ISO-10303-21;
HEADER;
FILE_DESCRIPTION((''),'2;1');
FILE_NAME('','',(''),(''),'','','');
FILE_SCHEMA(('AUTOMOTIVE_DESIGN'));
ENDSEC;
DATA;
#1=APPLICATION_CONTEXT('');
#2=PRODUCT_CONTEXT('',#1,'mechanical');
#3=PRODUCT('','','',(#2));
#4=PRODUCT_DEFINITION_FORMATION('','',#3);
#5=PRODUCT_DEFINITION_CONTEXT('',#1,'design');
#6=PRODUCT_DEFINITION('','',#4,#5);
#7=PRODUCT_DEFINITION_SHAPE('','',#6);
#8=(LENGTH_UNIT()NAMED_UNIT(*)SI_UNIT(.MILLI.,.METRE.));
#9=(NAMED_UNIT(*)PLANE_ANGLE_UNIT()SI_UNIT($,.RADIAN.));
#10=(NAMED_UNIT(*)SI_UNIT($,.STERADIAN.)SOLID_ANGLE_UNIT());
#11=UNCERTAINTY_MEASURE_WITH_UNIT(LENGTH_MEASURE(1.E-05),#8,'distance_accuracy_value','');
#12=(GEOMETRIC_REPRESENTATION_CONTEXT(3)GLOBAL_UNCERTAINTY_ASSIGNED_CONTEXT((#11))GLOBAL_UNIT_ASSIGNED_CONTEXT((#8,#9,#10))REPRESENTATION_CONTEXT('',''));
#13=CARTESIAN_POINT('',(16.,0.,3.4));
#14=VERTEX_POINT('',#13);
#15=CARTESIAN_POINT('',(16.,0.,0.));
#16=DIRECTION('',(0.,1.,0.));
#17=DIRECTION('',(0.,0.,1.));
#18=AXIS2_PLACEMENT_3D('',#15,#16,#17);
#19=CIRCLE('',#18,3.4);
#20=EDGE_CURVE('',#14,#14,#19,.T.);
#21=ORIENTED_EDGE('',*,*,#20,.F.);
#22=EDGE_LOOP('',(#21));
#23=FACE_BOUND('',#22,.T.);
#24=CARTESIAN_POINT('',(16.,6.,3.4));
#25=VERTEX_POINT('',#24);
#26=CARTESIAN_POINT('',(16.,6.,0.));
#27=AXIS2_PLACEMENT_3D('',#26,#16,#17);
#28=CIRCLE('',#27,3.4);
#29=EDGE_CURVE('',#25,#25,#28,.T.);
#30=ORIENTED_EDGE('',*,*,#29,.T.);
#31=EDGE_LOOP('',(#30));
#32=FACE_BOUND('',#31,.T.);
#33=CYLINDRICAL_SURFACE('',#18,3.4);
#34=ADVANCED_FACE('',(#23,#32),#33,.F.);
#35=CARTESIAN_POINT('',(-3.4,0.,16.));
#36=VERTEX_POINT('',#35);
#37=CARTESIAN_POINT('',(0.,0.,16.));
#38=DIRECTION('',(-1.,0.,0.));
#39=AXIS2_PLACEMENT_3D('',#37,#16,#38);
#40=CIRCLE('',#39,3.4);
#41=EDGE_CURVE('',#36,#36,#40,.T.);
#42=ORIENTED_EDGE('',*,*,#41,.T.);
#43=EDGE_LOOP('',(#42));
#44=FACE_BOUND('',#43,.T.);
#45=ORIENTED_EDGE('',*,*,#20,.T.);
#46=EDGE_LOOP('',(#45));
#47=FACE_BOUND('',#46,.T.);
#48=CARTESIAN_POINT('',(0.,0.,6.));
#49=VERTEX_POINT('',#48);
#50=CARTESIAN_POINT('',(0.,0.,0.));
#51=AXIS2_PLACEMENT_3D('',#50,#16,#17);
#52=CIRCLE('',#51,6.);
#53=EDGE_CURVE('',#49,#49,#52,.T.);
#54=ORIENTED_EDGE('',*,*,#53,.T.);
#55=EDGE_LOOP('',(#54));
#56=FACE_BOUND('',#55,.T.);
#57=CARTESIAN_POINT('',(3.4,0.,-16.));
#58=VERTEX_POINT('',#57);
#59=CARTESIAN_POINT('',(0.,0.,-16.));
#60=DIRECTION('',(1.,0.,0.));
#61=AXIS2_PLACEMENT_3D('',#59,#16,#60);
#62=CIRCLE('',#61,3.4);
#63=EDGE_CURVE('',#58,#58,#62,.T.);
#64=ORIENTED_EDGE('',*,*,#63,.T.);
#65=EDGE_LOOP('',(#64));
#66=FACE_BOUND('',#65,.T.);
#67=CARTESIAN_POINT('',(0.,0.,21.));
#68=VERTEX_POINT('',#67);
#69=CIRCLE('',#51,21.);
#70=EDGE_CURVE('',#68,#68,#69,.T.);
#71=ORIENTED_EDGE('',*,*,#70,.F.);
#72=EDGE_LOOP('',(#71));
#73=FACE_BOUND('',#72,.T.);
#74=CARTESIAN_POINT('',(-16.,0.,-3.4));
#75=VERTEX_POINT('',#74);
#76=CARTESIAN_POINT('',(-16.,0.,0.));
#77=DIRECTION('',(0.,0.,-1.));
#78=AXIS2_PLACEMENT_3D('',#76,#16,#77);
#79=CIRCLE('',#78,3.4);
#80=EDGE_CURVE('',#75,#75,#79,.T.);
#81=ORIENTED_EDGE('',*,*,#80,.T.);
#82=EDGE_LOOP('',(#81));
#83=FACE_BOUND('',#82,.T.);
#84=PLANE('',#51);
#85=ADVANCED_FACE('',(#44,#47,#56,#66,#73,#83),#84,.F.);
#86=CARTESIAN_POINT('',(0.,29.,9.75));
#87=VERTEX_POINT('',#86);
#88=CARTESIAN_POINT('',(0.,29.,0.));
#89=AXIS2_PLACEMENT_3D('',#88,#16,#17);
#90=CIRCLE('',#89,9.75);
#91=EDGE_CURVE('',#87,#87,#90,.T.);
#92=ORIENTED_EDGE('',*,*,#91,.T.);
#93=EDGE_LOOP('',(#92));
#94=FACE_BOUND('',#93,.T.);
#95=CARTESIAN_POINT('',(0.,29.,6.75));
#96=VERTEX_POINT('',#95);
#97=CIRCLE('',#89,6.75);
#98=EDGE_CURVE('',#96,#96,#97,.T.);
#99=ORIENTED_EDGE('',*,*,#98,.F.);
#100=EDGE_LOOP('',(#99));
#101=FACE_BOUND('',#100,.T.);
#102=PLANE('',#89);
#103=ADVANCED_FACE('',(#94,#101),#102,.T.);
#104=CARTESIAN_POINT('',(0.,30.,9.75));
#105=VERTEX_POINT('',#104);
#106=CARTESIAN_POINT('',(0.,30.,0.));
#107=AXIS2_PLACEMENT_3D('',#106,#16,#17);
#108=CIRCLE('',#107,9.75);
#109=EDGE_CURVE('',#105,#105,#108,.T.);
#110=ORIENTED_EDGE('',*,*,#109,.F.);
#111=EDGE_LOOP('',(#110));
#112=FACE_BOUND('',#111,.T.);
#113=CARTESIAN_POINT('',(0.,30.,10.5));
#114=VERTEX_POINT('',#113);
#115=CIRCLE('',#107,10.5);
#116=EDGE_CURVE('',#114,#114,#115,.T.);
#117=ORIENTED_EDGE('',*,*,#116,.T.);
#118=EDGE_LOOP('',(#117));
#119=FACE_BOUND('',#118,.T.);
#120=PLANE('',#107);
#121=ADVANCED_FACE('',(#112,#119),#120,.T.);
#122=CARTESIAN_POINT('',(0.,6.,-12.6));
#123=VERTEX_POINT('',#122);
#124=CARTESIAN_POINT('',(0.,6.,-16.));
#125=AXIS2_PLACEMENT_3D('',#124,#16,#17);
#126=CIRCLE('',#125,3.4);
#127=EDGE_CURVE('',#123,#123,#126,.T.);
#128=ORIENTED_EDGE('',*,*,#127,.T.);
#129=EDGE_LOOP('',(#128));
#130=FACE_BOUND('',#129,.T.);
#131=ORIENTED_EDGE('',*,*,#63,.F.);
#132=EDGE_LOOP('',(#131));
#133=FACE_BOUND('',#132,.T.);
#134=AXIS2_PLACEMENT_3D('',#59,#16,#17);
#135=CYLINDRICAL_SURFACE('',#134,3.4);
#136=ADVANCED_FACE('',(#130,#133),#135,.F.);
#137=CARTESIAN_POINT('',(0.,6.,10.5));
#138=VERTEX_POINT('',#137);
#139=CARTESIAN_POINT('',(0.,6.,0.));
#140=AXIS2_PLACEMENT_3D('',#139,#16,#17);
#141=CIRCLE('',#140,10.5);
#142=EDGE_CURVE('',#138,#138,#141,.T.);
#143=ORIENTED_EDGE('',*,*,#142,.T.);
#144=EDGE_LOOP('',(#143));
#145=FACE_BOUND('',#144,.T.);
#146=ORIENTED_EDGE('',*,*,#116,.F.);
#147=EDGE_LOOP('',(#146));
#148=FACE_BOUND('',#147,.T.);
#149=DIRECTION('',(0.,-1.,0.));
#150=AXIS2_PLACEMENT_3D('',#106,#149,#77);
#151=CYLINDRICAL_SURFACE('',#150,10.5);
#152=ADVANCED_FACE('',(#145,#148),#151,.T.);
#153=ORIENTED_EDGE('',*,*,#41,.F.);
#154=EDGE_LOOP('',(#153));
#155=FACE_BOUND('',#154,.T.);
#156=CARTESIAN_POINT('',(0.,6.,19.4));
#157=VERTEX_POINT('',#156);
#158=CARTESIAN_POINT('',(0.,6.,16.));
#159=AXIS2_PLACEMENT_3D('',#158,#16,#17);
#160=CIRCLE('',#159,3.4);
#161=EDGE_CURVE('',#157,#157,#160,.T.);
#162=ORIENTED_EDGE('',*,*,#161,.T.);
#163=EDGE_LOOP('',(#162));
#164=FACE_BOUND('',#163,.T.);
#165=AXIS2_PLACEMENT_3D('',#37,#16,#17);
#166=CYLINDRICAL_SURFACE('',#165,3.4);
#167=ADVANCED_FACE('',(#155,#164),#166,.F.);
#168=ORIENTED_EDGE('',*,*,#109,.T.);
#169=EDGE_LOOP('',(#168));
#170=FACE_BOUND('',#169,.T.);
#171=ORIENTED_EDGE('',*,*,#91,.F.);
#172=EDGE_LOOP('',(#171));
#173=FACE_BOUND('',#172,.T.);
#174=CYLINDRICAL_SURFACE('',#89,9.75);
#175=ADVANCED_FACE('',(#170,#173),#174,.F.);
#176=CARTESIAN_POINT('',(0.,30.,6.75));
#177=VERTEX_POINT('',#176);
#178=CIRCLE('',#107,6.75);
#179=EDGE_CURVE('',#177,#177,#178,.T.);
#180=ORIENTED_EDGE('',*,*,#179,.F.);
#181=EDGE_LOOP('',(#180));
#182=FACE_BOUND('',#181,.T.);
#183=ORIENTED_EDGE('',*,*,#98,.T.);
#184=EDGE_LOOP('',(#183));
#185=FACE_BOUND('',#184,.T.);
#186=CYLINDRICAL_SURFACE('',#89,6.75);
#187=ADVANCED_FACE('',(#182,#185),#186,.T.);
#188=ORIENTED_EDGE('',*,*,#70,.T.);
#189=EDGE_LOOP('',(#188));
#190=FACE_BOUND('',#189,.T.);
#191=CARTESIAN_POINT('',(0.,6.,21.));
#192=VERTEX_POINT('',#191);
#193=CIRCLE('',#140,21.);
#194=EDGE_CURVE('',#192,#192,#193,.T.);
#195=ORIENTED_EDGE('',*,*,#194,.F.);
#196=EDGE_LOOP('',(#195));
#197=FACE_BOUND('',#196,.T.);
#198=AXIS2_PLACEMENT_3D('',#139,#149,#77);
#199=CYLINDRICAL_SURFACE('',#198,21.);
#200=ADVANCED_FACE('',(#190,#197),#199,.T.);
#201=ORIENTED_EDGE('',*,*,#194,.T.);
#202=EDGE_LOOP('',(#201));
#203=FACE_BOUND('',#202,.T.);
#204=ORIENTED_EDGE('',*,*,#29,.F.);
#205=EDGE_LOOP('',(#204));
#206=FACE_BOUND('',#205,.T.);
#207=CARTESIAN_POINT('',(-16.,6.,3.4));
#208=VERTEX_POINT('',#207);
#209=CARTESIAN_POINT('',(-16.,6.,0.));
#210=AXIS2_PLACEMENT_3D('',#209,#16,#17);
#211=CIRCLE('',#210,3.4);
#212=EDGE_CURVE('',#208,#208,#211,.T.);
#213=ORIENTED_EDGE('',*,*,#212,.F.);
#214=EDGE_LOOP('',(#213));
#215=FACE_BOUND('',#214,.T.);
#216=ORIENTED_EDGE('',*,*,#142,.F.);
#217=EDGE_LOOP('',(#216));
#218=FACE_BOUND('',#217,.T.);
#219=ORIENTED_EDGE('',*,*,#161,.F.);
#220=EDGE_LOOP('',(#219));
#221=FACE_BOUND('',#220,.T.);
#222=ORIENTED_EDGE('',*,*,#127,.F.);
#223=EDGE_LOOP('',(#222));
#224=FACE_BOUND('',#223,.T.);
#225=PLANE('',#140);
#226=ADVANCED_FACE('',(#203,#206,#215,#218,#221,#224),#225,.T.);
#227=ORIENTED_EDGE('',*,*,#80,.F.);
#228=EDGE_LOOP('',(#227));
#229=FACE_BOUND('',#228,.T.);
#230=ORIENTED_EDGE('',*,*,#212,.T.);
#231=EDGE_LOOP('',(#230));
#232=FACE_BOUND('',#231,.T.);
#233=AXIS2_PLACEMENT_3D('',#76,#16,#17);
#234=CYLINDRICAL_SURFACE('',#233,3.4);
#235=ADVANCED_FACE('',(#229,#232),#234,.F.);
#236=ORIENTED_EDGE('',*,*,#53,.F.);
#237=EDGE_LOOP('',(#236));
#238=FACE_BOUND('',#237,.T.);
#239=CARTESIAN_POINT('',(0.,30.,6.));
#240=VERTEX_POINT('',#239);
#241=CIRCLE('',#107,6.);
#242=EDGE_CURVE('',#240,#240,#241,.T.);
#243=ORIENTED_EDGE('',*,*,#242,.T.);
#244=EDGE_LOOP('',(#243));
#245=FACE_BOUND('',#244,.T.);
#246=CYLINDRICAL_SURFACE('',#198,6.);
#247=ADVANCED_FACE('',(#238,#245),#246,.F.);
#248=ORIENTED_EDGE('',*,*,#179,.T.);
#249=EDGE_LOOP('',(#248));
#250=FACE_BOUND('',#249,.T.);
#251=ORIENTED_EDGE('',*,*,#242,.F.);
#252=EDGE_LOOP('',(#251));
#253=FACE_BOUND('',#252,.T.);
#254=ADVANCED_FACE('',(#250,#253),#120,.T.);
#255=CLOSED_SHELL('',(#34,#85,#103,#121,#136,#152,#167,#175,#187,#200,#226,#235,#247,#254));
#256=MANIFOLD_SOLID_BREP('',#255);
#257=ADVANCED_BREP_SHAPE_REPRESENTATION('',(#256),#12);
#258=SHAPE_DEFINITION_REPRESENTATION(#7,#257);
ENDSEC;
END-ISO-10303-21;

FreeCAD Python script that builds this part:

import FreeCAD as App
import Part
import Sketcher

doc = App.newDocument("Part")
body = doc.addObject("PartDesign::Body", "Body")

sketch1 = doc.addObject("Sketcher::SketchObject", "Sketch")
body.addObject(sketch1)
sketch1.AttachmentSupport = (doc.XZ_Plane, [""])
sketch1.MapMode = "FlatFace"
sketch1.addGeometry(Part.Circle(App.Vector(0, 0, 0), App.Vector(0, 0, 1), 21), False)
sketch1.addGeometry(Part.Circle(App.Vector(0, 0, 0), App.Vector(0, 0, 1), 6), False)
sketch1.addConstraint(Sketcher.Constraint("Coincident", 0, 3, -1, 1))
sketch1.addConstraint(Sketcher.Constraint("Coincident", 1, 3, -1, 1))
sketch1.addConstraint(Sketcher.Constraint("Diameter", 0, 42.0))
sketch1.addConstraint(Sketcher.Constraint("Diameter", 1, 12.0))
pad1 = doc.addObject("PartDesign::Pad", "Pad")
body.addObject(pad1)
pad1.Profile = sketch1
pad1.Length = 6
pad1.Reversed = True

sketch2 = doc.addObject("Sketcher::SketchObject", "Sketch001")
body.addObject(sketch2)
sketch2.AttachmentSupport = (doc.XZ_Plane, [""])
sketch2.MapMode = "FlatFace"
sketch2.AttachmentOffset = App.Placement(App.Vector(0, 0, -6), App.Rotation())
sketch2.addGeometry(Part.Circle(App.Vector(0, 0, 0), App.Vector(0, 0, 1), 10.5), False)
sketch2.addGeometry(Part.Circle(App.Vector(0, 0, 0), App.Vector(0, 0, 1), 6), False)
sketch2.addConstraint(Sketcher.Constraint("Coincident", 0, 3, -1, 1))
sketch2.addConstraint(Sketcher.Constraint("Coincident", 1, 3, -1, 1))
sketch2.addConstraint(Sketcher.Constraint("Diameter", 0, 21.0))
sketch2.addConstraint(Sketcher.Constraint("Diameter", 1, 12.0))
pad2 = doc.addObject("PartDesign::Pad", "Pad001")
body.addObject(pad2)
pad2.Profile = sketch2
pad2.Length = 24
pad2.Reversed = True

sketch3 = doc.addObject("Sketcher::SketchObject", "Sketch002")
body.addObject(sketch3)
sketch3.AttachmentSupport = (doc.XZ_Plane, [""])
sketch3.MapMode = "FlatFace"
sketch3.AttachmentOffset = App.Placement(App.Vector(0, 0, -30), App.Rotation())
sketch3.addGeometry(Part.Circle(App.Vector(0, 0, 0), App.Vector(0, 0, 1), 9.75), False)
sketch3.addGeometry(Part.Circle(App.Vector(0, 0, 0), App.Vector(0, 0, 1), 6.75), False)
sketch3.addConstraint(Sketcher.Constraint("Coincident", 0, 3, -1, 1))
sketch3.addConstraint(Sketcher.Constraint("Coincident", 1, 3, -1, 1))
sketch3.addConstraint(Sketcher.Constraint("Diameter", 0, 19.5))
sketch3.addConstraint(Sketcher.Constraint("Diameter", 1, 13.5))
pocket1 = doc.addObject("PartDesign::Pocket", "Pocket")
body.addObject(pocket1)
pocket1.Profile = sketch3
pocket1.Length = 1
pocket1.Reversed = True

sketch4 = doc.addObject("Sketcher::SketchObject", "Sketch003")
body.addObject(sketch4)
sketch4.AttachmentSupport = (doc.XZ_Plane, [""])
sketch4.MapMode = "FlatFace"
sketch4.AttachmentOffset = App.Placement(App.Vector(0, 0, 1), App.Rotation())
sketch4.addGeometry(Part.Circle(App.Vector(16, 0, 0), App.Vector(0, 0, 1), 3.4), False)
sketch4.addConstraint(Sketcher.Constraint("PointOnObject", 0, 3, -1))
sketch4.addConstraint(Sketcher.Constraint("Diameter", 0, 6.8))
sketch4.addConstraint(Sketcher.Constraint("DistanceX", -1, 1, 0, 3, 16.0))
pocket2 = doc.addObject("PartDesign::Pocket", "Pocket001")
body.addObject(pocket2)
pocket2.Profile = sketch4
pocket2.Length = 32
doc.recompute()

polarpattern = doc.addObject("PartDesign::PolarPattern", "PolarPattern")
body.addObject(polarpattern)
polarpattern.Originals = [pocket2]
polarpattern.Axis = (doc.Y_Axis, [""])
polarpattern.Angle = 360
polarpattern.Occurrences = 4
body.Tip = polarpattern

doc.recompute()
